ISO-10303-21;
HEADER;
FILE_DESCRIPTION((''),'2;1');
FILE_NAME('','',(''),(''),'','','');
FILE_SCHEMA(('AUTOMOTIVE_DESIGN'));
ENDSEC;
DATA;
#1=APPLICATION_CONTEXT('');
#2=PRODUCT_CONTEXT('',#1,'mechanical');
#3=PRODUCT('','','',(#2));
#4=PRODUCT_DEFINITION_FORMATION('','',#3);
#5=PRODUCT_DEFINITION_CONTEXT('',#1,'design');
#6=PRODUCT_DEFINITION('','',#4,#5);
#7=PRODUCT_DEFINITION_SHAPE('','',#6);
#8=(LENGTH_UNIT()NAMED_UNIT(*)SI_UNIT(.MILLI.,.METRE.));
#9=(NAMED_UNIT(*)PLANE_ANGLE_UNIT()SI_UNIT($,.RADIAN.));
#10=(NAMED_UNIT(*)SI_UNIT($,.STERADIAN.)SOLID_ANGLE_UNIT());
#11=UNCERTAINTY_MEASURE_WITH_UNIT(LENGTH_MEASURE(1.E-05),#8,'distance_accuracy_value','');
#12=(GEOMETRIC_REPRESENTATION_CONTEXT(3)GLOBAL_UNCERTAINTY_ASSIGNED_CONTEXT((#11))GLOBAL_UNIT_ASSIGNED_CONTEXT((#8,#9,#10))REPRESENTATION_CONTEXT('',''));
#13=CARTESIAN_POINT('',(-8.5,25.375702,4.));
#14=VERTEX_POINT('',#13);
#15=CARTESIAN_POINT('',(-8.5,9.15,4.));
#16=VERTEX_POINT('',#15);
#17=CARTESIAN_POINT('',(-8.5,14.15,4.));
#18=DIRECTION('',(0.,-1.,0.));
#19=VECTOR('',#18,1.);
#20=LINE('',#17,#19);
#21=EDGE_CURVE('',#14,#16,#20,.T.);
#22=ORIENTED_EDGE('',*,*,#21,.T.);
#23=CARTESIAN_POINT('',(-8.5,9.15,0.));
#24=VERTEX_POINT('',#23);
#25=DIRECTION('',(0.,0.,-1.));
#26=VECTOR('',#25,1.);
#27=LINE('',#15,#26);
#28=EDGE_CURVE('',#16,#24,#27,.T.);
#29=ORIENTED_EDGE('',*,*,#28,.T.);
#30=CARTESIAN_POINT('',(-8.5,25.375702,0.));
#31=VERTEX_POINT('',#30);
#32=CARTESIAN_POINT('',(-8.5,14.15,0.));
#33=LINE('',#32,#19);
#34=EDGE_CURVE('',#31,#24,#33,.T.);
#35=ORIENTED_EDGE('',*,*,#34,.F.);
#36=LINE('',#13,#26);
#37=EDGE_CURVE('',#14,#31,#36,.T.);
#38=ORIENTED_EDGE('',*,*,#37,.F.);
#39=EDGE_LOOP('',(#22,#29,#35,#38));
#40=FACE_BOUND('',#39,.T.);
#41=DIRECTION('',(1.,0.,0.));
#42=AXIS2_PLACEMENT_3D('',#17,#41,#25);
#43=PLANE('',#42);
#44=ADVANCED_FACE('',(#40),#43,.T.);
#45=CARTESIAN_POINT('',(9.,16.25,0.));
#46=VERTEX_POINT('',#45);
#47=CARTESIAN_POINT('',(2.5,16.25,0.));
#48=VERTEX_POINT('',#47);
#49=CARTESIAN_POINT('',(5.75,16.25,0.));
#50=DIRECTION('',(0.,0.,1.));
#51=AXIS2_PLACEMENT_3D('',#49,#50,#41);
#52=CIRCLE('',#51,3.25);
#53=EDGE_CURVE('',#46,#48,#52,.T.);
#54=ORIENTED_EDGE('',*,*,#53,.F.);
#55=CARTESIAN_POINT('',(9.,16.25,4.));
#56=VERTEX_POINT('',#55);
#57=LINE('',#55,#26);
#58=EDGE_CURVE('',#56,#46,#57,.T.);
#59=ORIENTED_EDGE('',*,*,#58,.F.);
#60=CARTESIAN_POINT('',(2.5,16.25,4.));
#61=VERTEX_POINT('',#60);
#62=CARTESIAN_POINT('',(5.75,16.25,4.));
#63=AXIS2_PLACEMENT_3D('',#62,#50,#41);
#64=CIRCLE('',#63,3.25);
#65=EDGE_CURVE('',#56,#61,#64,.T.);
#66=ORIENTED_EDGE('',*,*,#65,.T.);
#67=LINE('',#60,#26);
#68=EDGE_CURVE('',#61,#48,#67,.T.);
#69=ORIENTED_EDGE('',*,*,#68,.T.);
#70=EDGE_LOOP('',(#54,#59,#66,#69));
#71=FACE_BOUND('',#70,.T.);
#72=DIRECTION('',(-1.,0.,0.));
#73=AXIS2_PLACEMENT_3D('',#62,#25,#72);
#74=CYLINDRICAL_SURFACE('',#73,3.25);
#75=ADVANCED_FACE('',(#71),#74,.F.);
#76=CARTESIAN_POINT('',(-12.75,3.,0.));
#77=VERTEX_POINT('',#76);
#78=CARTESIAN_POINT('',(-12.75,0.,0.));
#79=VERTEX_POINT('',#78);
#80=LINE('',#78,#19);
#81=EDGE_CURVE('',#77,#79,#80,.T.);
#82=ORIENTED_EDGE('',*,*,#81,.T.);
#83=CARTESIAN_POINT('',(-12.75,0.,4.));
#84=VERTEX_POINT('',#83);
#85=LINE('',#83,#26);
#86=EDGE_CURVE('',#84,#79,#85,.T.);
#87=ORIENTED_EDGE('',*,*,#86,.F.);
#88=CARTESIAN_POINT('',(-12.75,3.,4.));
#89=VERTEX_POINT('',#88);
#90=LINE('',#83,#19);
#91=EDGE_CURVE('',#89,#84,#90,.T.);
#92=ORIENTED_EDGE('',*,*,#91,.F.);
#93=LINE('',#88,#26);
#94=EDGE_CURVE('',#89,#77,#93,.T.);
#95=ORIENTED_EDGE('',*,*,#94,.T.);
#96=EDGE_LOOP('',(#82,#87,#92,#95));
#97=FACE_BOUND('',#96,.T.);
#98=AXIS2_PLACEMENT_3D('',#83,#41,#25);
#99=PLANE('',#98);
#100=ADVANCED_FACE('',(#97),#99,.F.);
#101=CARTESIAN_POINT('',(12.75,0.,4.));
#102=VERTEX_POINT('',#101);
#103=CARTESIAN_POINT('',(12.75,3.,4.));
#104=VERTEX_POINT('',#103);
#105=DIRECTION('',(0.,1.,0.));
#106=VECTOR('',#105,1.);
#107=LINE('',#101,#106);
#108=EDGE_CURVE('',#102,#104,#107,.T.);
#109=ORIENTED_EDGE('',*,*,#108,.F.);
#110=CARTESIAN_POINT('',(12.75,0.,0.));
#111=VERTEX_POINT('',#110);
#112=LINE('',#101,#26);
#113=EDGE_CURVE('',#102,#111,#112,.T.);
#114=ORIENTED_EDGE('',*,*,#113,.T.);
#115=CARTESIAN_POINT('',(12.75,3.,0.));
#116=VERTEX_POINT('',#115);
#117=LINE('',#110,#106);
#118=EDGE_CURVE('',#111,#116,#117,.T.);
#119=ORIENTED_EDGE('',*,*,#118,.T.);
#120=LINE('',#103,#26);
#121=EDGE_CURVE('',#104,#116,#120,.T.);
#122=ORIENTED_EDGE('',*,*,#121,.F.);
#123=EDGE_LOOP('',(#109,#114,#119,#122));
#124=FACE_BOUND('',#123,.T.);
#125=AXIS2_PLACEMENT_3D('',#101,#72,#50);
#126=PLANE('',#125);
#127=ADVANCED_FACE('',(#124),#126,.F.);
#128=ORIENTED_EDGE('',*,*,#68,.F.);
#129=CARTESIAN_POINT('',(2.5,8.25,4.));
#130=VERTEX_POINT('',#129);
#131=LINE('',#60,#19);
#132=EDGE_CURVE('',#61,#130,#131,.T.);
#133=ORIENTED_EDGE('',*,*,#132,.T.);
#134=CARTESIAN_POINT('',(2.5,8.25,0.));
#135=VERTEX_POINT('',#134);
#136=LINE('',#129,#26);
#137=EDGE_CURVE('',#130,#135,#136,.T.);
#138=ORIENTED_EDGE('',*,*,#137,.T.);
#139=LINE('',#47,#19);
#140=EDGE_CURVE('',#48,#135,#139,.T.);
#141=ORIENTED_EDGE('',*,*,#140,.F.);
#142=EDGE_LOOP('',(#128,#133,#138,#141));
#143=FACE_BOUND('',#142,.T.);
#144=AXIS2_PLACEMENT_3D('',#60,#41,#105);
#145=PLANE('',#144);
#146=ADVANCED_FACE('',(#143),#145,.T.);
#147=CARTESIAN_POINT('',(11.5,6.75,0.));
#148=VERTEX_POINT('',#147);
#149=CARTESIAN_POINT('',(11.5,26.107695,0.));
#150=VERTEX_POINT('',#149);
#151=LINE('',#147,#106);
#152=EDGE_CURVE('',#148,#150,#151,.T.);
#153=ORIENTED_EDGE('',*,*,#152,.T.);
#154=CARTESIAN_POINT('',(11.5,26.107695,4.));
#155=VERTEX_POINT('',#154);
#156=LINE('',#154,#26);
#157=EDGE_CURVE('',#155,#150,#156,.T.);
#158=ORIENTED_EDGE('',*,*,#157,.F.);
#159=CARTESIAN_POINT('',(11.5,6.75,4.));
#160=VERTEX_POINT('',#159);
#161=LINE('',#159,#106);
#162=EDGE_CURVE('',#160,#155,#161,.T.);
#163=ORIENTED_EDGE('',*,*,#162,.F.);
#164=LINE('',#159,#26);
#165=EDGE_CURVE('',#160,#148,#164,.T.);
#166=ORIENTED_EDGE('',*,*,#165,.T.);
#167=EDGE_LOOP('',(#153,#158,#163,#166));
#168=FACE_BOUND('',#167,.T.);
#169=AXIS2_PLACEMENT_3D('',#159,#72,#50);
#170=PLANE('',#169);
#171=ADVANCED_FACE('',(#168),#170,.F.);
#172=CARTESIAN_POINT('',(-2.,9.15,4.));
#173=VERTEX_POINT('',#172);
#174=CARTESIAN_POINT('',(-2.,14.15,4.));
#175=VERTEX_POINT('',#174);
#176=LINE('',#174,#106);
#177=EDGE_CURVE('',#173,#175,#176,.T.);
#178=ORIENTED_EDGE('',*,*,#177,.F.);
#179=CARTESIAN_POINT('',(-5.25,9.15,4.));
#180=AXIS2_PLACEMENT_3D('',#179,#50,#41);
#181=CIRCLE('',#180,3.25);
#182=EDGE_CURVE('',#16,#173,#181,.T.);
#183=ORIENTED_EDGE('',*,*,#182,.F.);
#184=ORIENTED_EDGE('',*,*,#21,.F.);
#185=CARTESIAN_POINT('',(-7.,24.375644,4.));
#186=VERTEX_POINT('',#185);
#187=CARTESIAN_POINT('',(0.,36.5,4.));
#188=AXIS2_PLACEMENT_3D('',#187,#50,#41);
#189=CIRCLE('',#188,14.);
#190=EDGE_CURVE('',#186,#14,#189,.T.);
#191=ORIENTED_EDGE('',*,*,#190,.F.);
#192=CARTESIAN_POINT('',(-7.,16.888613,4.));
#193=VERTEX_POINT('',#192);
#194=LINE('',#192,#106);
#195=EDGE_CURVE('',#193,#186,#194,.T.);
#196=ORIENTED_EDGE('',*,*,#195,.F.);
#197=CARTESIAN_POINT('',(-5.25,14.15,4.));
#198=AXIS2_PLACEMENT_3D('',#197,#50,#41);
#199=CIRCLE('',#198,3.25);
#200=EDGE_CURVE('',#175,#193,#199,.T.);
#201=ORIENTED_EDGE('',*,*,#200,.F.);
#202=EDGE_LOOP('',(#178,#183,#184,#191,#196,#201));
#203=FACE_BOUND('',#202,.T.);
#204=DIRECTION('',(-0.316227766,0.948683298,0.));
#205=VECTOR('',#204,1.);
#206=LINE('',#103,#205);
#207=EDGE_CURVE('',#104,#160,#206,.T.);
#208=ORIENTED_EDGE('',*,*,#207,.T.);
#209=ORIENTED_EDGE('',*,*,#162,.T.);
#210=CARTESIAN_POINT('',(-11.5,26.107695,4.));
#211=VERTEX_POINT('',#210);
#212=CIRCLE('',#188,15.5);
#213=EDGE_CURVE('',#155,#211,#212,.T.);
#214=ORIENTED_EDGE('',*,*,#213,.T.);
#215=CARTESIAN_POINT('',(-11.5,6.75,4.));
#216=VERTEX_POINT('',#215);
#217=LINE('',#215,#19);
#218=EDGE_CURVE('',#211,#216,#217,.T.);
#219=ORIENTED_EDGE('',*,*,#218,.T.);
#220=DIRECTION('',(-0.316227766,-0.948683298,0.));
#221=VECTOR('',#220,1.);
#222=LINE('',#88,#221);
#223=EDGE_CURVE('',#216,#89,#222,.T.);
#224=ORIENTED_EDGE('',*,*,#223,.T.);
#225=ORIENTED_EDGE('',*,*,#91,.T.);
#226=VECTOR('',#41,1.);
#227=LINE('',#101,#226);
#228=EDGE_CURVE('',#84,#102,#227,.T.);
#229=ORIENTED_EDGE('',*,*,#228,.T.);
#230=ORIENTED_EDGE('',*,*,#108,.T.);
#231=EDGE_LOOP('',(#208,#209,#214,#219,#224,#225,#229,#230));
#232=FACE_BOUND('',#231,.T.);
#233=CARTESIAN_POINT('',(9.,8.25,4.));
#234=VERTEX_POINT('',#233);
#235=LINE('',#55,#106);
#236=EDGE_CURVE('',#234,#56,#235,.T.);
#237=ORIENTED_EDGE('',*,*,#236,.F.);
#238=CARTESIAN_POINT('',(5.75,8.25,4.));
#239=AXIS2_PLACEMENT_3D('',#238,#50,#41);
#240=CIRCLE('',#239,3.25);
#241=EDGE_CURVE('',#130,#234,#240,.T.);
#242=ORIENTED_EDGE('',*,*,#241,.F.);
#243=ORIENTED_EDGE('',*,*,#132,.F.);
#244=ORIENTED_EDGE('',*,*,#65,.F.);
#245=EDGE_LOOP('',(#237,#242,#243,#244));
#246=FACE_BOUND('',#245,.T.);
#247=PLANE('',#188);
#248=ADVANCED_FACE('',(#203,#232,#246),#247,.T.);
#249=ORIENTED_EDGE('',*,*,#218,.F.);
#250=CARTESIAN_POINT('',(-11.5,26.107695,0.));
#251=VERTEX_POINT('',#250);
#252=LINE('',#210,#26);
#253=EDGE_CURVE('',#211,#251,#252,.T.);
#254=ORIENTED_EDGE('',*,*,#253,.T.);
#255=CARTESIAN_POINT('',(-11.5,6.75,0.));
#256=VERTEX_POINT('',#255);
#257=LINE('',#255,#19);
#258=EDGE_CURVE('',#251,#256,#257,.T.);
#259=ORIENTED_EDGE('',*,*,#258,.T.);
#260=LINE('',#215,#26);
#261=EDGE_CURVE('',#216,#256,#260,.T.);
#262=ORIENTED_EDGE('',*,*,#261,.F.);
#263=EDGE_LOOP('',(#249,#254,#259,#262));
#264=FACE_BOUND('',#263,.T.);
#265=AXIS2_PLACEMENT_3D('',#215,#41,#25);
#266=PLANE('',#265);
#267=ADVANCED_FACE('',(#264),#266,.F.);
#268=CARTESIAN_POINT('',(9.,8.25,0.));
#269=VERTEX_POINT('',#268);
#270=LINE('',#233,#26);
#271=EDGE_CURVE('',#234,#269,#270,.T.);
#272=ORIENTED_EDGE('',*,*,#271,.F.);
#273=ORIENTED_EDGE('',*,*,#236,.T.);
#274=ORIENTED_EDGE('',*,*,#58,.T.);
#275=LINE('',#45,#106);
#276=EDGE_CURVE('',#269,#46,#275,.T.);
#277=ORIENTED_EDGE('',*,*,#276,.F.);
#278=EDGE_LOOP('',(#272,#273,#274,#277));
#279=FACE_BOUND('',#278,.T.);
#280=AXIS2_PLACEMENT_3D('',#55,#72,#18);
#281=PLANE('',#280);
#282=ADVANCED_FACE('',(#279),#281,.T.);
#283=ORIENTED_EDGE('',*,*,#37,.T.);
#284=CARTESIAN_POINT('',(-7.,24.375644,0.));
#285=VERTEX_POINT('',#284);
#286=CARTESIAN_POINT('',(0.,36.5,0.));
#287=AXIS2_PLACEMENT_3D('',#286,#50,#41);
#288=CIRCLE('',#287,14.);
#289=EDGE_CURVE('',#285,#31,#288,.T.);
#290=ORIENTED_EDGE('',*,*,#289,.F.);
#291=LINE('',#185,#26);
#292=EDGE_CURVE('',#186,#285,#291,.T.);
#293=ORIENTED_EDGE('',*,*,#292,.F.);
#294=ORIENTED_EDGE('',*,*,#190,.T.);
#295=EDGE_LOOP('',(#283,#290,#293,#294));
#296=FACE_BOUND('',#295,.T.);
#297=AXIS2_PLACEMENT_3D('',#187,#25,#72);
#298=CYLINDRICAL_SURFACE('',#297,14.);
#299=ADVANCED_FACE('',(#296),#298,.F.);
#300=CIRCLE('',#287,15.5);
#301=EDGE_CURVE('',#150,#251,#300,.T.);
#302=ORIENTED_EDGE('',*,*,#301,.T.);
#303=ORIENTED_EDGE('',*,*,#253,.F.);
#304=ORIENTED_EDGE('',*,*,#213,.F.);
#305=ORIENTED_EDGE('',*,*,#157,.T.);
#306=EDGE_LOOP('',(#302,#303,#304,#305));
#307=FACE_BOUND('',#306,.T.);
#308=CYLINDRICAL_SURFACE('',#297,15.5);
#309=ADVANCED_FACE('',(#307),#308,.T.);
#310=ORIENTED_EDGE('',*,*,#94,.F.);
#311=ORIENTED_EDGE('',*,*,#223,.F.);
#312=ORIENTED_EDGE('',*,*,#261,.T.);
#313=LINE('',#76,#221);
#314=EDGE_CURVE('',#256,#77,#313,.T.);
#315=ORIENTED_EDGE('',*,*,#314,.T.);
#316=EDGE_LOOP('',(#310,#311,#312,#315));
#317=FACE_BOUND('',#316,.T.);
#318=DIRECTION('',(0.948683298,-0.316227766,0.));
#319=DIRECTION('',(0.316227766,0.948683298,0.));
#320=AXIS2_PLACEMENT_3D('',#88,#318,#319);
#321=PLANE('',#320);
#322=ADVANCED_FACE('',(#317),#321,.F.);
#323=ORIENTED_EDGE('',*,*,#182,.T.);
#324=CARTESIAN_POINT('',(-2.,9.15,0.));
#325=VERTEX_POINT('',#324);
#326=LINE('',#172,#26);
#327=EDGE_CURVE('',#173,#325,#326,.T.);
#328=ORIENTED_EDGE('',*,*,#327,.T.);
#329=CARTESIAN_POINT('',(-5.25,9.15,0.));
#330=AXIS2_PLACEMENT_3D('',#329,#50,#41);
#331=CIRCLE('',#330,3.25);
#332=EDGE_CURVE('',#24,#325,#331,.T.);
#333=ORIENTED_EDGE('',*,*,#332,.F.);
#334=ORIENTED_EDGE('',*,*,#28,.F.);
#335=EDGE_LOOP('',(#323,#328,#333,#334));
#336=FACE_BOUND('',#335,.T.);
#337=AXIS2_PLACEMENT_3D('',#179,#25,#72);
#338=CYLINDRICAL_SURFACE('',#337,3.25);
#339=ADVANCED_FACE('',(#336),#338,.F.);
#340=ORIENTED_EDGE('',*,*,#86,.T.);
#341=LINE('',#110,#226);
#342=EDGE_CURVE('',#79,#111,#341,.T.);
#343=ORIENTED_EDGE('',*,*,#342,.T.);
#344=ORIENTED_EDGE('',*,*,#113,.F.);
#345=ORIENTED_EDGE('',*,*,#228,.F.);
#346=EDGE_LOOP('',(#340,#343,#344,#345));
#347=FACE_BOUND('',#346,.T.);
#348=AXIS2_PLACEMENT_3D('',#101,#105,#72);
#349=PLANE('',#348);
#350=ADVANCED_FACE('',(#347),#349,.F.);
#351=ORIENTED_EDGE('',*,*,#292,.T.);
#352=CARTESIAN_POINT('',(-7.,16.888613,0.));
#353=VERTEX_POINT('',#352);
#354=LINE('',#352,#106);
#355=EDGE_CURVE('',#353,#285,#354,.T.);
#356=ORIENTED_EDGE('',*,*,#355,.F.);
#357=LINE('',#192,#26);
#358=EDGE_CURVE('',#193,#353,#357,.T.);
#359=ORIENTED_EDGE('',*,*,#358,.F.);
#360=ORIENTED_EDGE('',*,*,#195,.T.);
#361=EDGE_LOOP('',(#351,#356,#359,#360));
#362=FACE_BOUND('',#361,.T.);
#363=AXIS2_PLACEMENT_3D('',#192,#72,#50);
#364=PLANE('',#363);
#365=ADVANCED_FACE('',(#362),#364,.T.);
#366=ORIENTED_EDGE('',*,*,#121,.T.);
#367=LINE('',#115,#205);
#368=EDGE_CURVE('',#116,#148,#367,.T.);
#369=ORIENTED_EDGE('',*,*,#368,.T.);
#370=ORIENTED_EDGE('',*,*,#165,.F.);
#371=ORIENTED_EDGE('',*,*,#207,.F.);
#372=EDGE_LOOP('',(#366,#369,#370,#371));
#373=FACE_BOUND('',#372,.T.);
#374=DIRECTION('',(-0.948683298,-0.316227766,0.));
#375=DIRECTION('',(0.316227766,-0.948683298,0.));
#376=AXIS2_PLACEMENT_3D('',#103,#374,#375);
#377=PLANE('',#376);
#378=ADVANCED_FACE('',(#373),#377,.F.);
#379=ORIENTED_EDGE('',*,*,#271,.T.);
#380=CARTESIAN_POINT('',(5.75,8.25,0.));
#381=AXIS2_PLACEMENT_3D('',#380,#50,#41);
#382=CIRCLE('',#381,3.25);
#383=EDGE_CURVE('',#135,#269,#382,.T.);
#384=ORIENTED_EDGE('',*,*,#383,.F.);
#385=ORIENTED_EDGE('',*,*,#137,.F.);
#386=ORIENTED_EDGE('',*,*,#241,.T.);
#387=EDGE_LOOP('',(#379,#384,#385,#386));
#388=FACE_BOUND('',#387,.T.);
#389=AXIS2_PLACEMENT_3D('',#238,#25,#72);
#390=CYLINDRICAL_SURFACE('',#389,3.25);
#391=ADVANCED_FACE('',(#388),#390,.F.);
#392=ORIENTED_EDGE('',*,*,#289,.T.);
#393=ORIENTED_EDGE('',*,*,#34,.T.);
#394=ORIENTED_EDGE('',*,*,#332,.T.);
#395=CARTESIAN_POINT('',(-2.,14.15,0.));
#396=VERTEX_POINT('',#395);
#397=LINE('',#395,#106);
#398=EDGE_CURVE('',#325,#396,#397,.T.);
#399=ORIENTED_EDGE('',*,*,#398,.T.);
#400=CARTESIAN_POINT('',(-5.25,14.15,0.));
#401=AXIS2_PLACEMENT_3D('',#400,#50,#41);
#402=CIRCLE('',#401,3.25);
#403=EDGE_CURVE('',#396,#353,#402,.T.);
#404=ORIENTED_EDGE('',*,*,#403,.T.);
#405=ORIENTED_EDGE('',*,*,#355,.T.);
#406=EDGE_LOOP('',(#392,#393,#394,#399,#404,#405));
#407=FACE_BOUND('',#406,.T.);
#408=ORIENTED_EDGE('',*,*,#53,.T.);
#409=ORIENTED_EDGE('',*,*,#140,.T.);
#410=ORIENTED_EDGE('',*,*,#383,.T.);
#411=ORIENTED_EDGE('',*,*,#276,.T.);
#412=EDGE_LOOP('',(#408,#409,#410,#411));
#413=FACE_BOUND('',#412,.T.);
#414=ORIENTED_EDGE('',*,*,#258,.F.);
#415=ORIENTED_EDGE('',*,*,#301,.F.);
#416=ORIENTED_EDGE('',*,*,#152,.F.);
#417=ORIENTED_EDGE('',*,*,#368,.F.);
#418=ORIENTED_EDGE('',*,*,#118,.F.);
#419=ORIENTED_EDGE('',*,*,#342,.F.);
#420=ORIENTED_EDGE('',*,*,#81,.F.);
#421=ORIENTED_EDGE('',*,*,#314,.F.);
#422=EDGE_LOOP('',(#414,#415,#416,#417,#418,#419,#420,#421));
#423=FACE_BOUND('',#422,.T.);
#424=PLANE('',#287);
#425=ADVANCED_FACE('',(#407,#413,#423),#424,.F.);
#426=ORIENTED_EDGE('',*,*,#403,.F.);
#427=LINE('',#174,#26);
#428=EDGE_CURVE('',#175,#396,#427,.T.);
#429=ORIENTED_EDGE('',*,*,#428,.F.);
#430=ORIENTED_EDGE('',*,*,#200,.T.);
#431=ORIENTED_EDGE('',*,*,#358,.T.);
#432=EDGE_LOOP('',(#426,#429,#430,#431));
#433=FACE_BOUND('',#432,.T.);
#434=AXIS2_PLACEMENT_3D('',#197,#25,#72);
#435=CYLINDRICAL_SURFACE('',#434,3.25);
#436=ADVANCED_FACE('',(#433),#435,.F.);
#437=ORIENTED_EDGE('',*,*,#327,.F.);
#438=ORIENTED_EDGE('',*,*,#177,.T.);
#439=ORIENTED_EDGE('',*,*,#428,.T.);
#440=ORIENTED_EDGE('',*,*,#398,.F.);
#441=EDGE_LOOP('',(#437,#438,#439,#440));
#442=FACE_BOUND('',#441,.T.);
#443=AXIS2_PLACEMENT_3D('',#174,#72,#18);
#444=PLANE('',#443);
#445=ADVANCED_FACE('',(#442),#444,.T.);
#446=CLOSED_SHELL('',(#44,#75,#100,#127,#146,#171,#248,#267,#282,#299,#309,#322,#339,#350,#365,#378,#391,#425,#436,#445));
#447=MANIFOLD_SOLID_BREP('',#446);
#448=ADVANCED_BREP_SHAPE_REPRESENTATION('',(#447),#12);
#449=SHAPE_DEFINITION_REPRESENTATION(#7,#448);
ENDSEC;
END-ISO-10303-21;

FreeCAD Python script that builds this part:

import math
import FreeCAD as App
import Part
import Sketcher
from FreeCAD import Vector
Q = App.Units.Quantity

doc = App.newDocument("Part")
body = doc.addObject("PartDesign::Body", "Body")

# Sketch on XY plane
sketch1 = body.newObject("Sketcher::SketchObject", "Sketch")
sketch1.AttachmentSupport = (doc.getObject("XY_Plane"), [""])
sketch1.MapMode = "FlatFace"
sketch1.addGeometry([
    Part.LineSegment(Vector(-12.8, 0, 0), Vector(12.8, 0, 0)),  # 0
    Part.LineSegment(Vector(12.8, 0, 0), Vector(12.8, 3, 0)),  # 1
    Part.LineSegment(Vector(12.8, 3, 0), Vector(11.5, 6.8, 0)),  # 2
    Part.LineSegment(Vector(11.5, 6.8, 0), Vector(11.5, 26.1, 0)),  # 3
    Part.ArcOfCircle(Part.Circle(Vector(0, 36.5, 0), Vector(0, 0, 1), 15.5), math.radians(-42), math.radians(222)),  # 4
    Part.LineSegment(Vector(-11.5, 26.1, 0), Vector(-11.5, 6.8, 0)),  # 5
    Part.LineSegment(Vector(-11.5, 6.8, 0), Vector(-12.8, 3, 0)),  # 6
    Part.LineSegment(Vector(-12.8, 3, 0), Vector(-12.8, 0, 0)),  # 7
    Part.LineSegment(Vector(9, 16.2, 0), Vector(9, 8.2, 0)),  # 8
    Part.ArcOfCircle(Part.Circle(Vector(5.8, 8.2, 0), Vector(0, 0, 1), 3.2), math.radians(180), math.radians(360)),  # 9
    Part.LineSegment(Vector(2.5, 8.2, 0), Vector(2.5, 16.2, 0)),  # 10
    Part.ArcOfCircle(Part.Circle(Vector(5.8, 16.2, 0), Vector(0, 0, 1), 3.2), math.radians(0), math.radians(180)),  # 11
    Part.LineSegment(Vector(-2, 14.2, 0), Vector(-2, 9.2, 0)),  # 12
    Part.ArcOfCircle(Part.Circle(Vector(-5.2, 9.2, 0), Vector(0, 0, 1), 3.2), math.radians(180), math.radians(360)),  # 13
    Part.LineSegment(Vector(-8.5, 9.2, 0), Vector(-8.5, 25.4, 0)),  # 14
    Part.ArcOfCircle(Part.Circle(Vector(0, 36.5, 0), Vector(0, 0, 1), 14), math.radians(-120), math.radians(233)),  # 15
    Part.LineSegment(Vector(-7, 24.4, 0), Vector(-7, 16.9, 0)),  # 16
    Part.ArcOfCircle(Part.Circle(Vector(-5.2, 14.2, 0), Vector(0, 0, 1), 3.2), math.radians(0), math.radians(123)),  # 17
], False)
sketch1.addConstraint([
    Sketcher.Constraint("Coincident", 0, 2, 1, 1),
    Sketcher.Constraint("Coincident", 1, 2, 2, 1),
    Sketcher.Constraint("Coincident", 2, 2, 3, 1),
    Sketcher.Constraint("Coincident", 3, 2, 4, 1),
    Sketcher.Constraint("Coincident", 4, 2, 5, 1),
    Sketcher.Constraint("Coincident", 5, 2, 6, 1),
    Sketcher.Constraint("Coincident", 6, 2, 7, 1),
    Sketcher.Constraint("Coincident", 7, 2, 0, 1),
    Sketcher.Constraint("Tangent", 8, 2, 9, 2),
    Sketcher.Constraint("Tangent", 9, 1, 10, 1),
    Sketcher.Constraint("Tangent", 10, 2, 11, 2),
    Sketcher.Constraint("Tangent", 11, 1, 8, 1),
    Sketcher.Constraint("Tangent", 12, 2, 13, 2),
    Sketcher.Constraint("Tangent", 13, 1, 14, 1),
    Sketcher.Constraint("Coincident", 14, 2, 15, 2),
    Sketcher.Constraint("Coincident", 15, 1, 16, 1),
    Sketcher.Constraint("Coincident", 16, 2, 17, 2),
    Sketcher.Constraint("Tangent", 17, 1, 12, 1),
    Sketcher.Constraint("Horizontal", 0),
    Sketcher.Constraint("Vertical", 1),
    Sketcher.Constraint("Vertical", 3),
    Sketcher.Constraint("Vertical", 5),
    Sketcher.Constraint("Vertical", 7),
    Sketcher.Constraint("Vertical", 8),
    Sketcher.Constraint("Vertical", 10),
    Sketcher.Constraint("Vertical", 12),
    Sketcher.Constraint("Vertical", 14),
    Sketcher.Constraint("Vertical", 16),
    Sketcher.Constraint("Coincident", 15, 3, 4, 3),
    Sketcher.Constraint("Equal", 11, 13),
    Sketcher.Constraint("Equal", 13, 17),
    Sketcher.Constraint("Symmetric", 0, 2, 7, 2, -1, 1),
    Sketcher.Constraint("Symmetric", 3, 2, 4, 2, -2),
    Sketcher.Constraint("Horizontal", 2, 2, 5, 2),
    Sketcher.Constraint("Horizontal", 1, 2, 6, 2),
    Sketcher.Constraint("Radius", 15, Q("14 mm")),
    Sketcher.Constraint("Radius", 4, Q("15.5 mm")),
    Sketcher.Constraint("DistanceY", 1, 1, 1, 2, Q("3 mm")),
    Sketcher.Constraint("DistanceY", 8, 2, 8, 1, Q("8 mm")),
    Sketcher.Constraint("DistanceY", 12, 2, 12, 1, Q("5 mm")),
    Sketcher.Constraint("Radius", 9, Q("3.25 mm")),
    Sketcher.Constraint("DistanceX", 0, 1, 0, 2, Q("25.5 mm")),
    Sketcher.Constraint("DistanceX", -1, 1, 8, 2, Q("9 mm")),
    Sketcher.Constraint("DistanceX", 12, 2, -1, 1, Q("2 mm")),
    Sketcher.Constraint("DistanceX", 15, 1, -1, 1, Q("7 mm")),
    Sketcher.Constraint("DistanceX", 9, 1, 2, 2, Q("9 mm")),
    Sketcher.Constraint("DistanceY", -1, 1, 4, 3, Q("36.5 mm")),
    Sketcher.Constraint("DistanceY", 9, 3, 13, 3, Q("0.9 mm")),
    Sketcher.Constraint("DistanceY", 2, 2, 9, 3, Q("1.5 mm")),
    Sketcher.Constraint("DistanceY", -1, 1, 9, 3, Q("8.25 mm")),
])
pad1 = body.newObject("PartDesign::Pad", "Pad")
pad1.Profile = sketch1
pad1.Length = 4

doc.recompute()
